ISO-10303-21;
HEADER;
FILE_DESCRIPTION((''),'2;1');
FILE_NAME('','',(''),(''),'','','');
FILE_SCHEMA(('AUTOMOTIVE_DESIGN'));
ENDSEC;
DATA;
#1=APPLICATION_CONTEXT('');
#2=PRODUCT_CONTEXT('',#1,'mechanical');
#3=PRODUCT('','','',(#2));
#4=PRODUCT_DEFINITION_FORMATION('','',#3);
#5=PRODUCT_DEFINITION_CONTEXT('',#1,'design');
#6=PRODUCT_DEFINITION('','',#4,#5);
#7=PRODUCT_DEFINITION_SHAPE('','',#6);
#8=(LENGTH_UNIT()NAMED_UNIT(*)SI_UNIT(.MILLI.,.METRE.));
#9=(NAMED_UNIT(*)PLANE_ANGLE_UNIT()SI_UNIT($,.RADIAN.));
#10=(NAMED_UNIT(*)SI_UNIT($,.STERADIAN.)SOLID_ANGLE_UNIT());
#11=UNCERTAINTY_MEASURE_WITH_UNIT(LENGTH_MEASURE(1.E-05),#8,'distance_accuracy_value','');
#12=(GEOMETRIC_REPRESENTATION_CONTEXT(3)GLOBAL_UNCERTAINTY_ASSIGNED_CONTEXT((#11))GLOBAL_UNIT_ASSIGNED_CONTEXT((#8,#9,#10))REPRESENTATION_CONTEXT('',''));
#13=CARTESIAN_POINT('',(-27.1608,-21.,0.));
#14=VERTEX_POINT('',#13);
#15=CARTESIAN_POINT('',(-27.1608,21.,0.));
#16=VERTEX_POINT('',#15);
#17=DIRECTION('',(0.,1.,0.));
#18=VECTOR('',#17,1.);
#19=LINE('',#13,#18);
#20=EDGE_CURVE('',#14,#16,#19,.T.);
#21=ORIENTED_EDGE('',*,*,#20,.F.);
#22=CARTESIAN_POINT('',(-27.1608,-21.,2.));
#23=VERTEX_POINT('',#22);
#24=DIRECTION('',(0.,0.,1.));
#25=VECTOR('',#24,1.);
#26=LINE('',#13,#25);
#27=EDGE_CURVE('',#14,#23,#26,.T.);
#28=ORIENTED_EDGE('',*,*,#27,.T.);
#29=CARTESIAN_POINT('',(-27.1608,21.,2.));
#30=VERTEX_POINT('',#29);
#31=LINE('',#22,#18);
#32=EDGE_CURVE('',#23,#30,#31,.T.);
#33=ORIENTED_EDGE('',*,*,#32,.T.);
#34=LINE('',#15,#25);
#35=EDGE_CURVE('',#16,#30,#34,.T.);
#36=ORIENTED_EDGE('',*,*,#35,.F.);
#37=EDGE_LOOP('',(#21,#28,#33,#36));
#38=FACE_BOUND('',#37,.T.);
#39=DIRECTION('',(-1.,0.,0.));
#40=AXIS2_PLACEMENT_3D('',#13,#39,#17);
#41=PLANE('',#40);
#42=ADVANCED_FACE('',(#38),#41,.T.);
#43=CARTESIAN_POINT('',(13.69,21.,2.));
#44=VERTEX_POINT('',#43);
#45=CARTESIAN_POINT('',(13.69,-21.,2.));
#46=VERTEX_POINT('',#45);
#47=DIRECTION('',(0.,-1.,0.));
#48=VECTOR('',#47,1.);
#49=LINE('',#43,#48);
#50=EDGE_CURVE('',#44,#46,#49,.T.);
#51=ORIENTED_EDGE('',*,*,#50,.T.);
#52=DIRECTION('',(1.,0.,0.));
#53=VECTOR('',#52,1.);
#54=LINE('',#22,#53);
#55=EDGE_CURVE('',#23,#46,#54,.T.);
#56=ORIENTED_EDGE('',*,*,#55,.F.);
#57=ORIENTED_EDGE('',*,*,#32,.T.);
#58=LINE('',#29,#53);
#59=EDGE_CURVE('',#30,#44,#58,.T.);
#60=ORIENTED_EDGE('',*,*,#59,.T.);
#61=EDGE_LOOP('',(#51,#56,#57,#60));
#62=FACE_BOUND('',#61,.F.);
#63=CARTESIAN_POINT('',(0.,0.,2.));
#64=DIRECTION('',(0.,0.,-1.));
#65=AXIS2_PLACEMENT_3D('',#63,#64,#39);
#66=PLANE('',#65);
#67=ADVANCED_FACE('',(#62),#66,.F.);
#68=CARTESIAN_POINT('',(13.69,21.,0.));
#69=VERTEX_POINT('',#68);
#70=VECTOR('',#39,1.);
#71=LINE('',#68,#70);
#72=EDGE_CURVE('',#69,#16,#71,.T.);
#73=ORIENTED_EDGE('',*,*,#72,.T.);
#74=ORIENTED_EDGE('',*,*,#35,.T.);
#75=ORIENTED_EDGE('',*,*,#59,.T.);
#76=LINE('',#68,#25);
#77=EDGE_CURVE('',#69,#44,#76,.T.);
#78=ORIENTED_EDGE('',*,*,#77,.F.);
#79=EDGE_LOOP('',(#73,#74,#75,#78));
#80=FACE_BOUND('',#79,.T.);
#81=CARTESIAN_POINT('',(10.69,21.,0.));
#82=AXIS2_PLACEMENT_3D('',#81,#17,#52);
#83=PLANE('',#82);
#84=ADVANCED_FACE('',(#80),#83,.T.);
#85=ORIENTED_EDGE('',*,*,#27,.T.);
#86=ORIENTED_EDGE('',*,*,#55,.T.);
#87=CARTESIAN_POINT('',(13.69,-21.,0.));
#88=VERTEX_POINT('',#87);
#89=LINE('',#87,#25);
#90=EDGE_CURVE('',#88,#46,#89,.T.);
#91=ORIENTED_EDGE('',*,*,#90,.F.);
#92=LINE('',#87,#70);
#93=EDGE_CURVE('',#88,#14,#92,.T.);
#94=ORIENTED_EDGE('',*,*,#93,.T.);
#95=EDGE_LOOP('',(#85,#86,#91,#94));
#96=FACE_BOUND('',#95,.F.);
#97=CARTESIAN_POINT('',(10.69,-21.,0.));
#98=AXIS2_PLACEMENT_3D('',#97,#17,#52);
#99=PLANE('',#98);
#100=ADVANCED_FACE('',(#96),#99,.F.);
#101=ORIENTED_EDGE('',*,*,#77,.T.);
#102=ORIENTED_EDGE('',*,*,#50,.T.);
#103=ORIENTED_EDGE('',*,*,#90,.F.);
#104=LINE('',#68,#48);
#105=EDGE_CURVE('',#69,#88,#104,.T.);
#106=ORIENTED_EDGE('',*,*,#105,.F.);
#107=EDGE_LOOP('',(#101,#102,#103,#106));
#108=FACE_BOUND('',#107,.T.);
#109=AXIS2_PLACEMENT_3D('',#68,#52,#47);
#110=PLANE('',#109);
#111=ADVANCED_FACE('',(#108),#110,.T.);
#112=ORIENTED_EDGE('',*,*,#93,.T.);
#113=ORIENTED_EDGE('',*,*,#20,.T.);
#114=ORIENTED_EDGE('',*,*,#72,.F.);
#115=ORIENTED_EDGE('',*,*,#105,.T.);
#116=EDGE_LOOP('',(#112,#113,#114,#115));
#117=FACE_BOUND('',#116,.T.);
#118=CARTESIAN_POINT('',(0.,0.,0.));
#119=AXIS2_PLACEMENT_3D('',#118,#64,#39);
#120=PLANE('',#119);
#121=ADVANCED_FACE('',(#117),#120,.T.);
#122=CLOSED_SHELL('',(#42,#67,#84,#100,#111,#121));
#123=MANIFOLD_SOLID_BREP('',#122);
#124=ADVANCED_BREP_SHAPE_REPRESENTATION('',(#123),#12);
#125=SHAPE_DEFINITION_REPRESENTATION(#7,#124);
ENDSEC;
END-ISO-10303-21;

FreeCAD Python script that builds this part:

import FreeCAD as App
import Part
import Sketcher
from FreeCAD import Vector
Q = App.Units.Quantity

doc = App.newDocument("Part")
body = doc.addObject("PartDesign::Body", "Body")

sketch1 = body.newObject("Sketcher::SketchObject", "Sketch")
sketch1.AttachmentSupport = (doc.getObject("XY_Plane"), [""])
sketch1.MapMode = "FlatFace"
sketch1.addGeometry(Part.LineSegment(Vector(-24.8832, -11.3233, 0), Vector(-20.8298, -20.1639, 0)), False)
sketch1.addGeometry(Part.LineSegment(Vector(-20.8298, -20.1639, 0), Vector(-9.3622, -20.1639, 0)), False)
sketch1.addGeometry(Part.LineSegment(Vector(-9.3622, -20.1639, 0), Vector(-9.3622, -11.5, 0)), False)
sketch1.addGeometry(Part.LineSegment(Vector(-9.3622, -11.5, 0), Vector(7.65, -11.5, 0)), False)
sketch1.addGeometry(Part.LineSegment(Vector(7.65, -11.5, 0), Vector(7.65, 11.5, 0)), False)
sketch1.addGeometry(Part.LineSegment(Vector(7.65, 11.5, 0), Vector(-9.3622, 11.5, 0)), False)
sketch1.addGeometry(Part.LineSegment(Vector(-9.3622, 11.5, 0), Vector(-9.3622, 20.3406, 0)), False)
sketch1.addGeometry(Part.LineSegment(Vector(-9.3622, 20.3406, 0), Vector(-20.8298, 20.3406, 0)), False)
sketch1.addGeometry(Part.LineSegment(Vector(-20.8298, 20.3406, 0), Vector(-24.8832, 11.5, 0)), False)
sketch1.addGeometry(Part.LineSegment(Vector(-24.8832, 11.5, 0), Vector(-24.8832, -11.3233, 0)), False)
sketch1.addConstraint(Sketcher.Constraint("Coincident", 0, 2, 1, 1))
sketch1.addConstraint(Sketcher.Constraint("Coincident", 1, 2, 2, 1))
sketch1.addConstraint(Sketcher.Constraint("Coincident", 2, 2, 3, 1))
sketch1.addConstraint(Sketcher.Constraint("Coincident", 3, 2, 4, 1))
sketch1.addConstraint(Sketcher.Constraint("Coincident", 4, 2, 5, 1))
sketch1.addConstraint(Sketcher.Constraint("Coincident", 5, 2, 6, 1))
sketch1.addConstraint(Sketcher.Constraint("Coincident", 6, 2, 7, 1))
sketch1.addConstraint(Sketcher.Constraint("Coincident", 7, 2, 8, 1))
sketch1.addConstraint(Sketcher.Constraint("Coincident", 8, 2, 9, 1))
sketch1.addConstraint(Sketcher.Constraint("Coincident", 9, 2, 0, 1))
sketch1.addConstraint(Sketcher.Constraint("Horizontal", 1))
sketch1.addConstraint(Sketcher.Constraint("Vertical", 2))
sketch1.addConstraint(Sketcher.Constraint("Horizontal", 3))
sketch1.addConstraint(Sketcher.Constraint("Vertical", 4))
sketch1.addConstraint(Sketcher.Constraint("Horizontal", 5))
sketch1.addConstraint(Sketcher.Constraint("Vertical", 6))
sketch1.addConstraint(Sketcher.Constraint("Horizontal", 7))
sketch1.addConstraint(Sketcher.Constraint("Vertical", 9))
sketch1.addConstraint(Sketcher.Constraint("Symmetric", 2, 2, 5, 2, -1))
sketch1.addConstraint(Sketcher.Constraint("Horizontal", 5, 2, 8, 2))
sketch1.addConstraint(Sketcher.Constraint("Vertical", 0, 2, 7, 2))
sketch1.addConstraint(Sketcher.Constraint("Equal", 0, 8))
sketch1.addConstraint(Sketcher.Constraint("DistanceY", 4, 1, 4, 2, Q("23 mm")))
sketch1.addConstraint(Sketcher.Constraint("DistanceY", 2, 1, 2, 2, Q("8.664 mm")))
sketch1.addConstraint(Sketcher.Constraint("DistanceX", -1, 1, 3, 2, Q("7.65 mm")))
sketch1.addConstraint(Sketcher.Constraint("DistanceX", 1, 1, 1, 2, Q("11.4676 mm")))
sketch1.addConstraint(Sketcher.Constraint("DistanceX", 3, 1, 3, 2, Q("17.0122 mm")))
sketch1.addConstraint(Sketcher.Constraint("DistanceY", 6, 1, 6, 2, Q("8.8406 mm")))
sketch1.addConstraint(Sketcher.Constraint("DistanceX", 8, 2, 5, 2, Q("15.521 mm")))
pad1 = body.newObject("PartDesign::Pad", "Pad")
pad1.Profile = sketch1
pad1.Length = 2

sketch2 = body.newObject("Sketcher::SketchObject", "Sketch001")
sketch2.AttachmentSupport = (doc.getObject("XY_Plane"), [""])
sketch2.MapMode = "FlatFace"
sketch2.AttachmentOffset = App.Placement(Vector(0, 0, 2), App.Rotation())
sketch2.addGeometry(Part.LineSegment(Vector(-9.3622, -11.5, 0), Vector(-9.3622, -20.1639, 0)), False)
sketch2.addGeometry(Part.LineSegment(Vector(-9.3622, -20.1639, 0), Vector(7.65, -20.1639, 0)), False)
sketch2.addGeometry(Part.LineSegment(Vector(7.65, -20.1639, 0), Vector(7.65, -11.5, 0)), False)
sketch2.addGeometry(Part.LineSegment(Vector(7.65, -11.5, 0), Vector(-9.3622, -11.5, 0)), False)
sketch2.addGeometry(Part.LineSegment(Vector(7.65, 20.3406, 0), Vector(-9.3622, 20.3406, 0)), False)
sketch2.addGeometry(Part.LineSegment(Vector(-9.3622, 20.3406, 0), Vector(-9.3622, 11.5, 0)), False)
sketch2.addGeometry(Part.LineSegment(Vector(-9.3622, 11.5, 0), Vector(7.65, 11.5, 0)), False)
sketch2.addGeometry(Part.LineSegment(Vector(7.65, 11.5, 0), Vector(7.65, 20.3406, 0)), False)
sketch2.addConstraint(Sketcher.Constraint("Coincident", 0, 2, 1, 1))
sketch2.addConstraint(Sketcher.Constraint("Coincident", 1, 2, 2, 1))
sketch2.addConstraint(Sketcher.Constraint("Coincident", 2, 2, 3, 1))
sketch2.addConstraint(Sketcher.Constraint("Coincident", 3, 2, 0, 1))
sketch2.addConstraint(Sketcher.Constraint("Coincident", 4, 2, 5, 1))
sketch2.addConstraint(Sketcher.Constraint("Coincident", 5, 2, 6, 1))
sketch2.addConstraint(Sketcher.Constraint("Coincident", 6, 2, 7, 1))
sketch2.addConstraint(Sketcher.Constraint("Coincident", 7, 2, 4, 1))
sketch2.addConstraint(Sketcher.Constraint("Vertical", 0))
sketch2.addConstraint(Sketcher.Constraint("Horizontal", 1))
sketch2.addConstraint(Sketcher.Constraint("Vertical", 2))
sketch2.addConstraint(Sketcher.Constraint("Horizontal", 3))
sketch2.addConstraint(Sketcher.Constraint("Horizontal", 4))
sketch2.addConstraint(Sketcher.Constraint("Vertical", 5))
sketch2.addConstraint(Sketcher.Constraint("Horizontal", 6))
sketch2.addConstraint(Sketcher.Constraint("Vertical", 7))
sketch2.addConstraint(Sketcher.Constraint("Symmetric", 3, 2, 5, 2, -1))
sketch2.addConstraint(Sketcher.Constraint("Vertical", 2, 2, 6, 2))
sketch2.addConstraint(Sketcher.Constraint("DistanceY", 3, 2, 5, 2, Q("23 mm")))
sketch2.addConstraint(Sketcher.Constraint("DistanceY", 0, 2, 0, 1, Q("8.664 mm")))
sketch2.addConstraint(Sketcher.Constraint("DistanceX", -1, 1, 1, 2, Q("7.65 mm")))
sketch2.addConstraint(Sketcher.Constraint("DistanceX", 1, 1, 1, 2, Q("17.0122 mm")))
sketch2.addConstraint(Sketcher.Constraint("DistanceY", 5, 2, 5, 1, Q("8.8406 mm")))
pad2 = body.newObject("PartDesign::Pad", "Pad001")
pad2.Profile = sketch2
pad2.Length = 2
pad2.Reversed = True

sketch3 = body.newObject("Sketcher::SketchObject", "Sketch002")
sketch3.AttachmentSupport = (doc.getObject("XY_Plane"), [""])
sketch3.MapMode = "FlatFace"
sketch3.addGeometry(Part.Circle(Vector(-4.3684, -8.4591, 0), Vector(0, 0, 1), 1.5), False)
sketch3.addGeometry(Part.Circle(Vector(-4.3684, 8.4591, 0), Vector(0, 0, 1), 1.5), False)
sketch3.addConstraint(Sketcher.Constraint("Equal", 0, 1))
sketch3.addConstraint(Sketcher.Constraint("Symmetric", 0, 3, 1, 3, -1))
sketch3.addConstraint(Sketcher.Constraint("Diameter", 0, Q("3 mm")))
sketch3.addConstraint(Sketcher.Constraint("DistanceY", 0, 3, -1, 1, Q("8.459 mm")))
sketch3.addConstraint(Sketcher.Constraint("DistanceX", 0, 3, -1, 1, Q("4.3684 mm")))
pocket1 = body.newObject("PartDesign::Pocket", "Pocket")
pocket1.Profile = sketch3
pocket1.Length = 2
pocket1.Reversed = True

sketch4 = body.newObject("Sketcher::SketchObject", "Sketch003")
sketch4.AttachmentSupport = (doc.getObject("XY_Plane"), [""])
sketch4.MapMode = "FlatFace"
sketch4.addGeometry(Part.LineSegment(Vector(13.69, 21, 0), Vector(13.69, -21, 0)), False)
sketch4.addGeometry(Part.LineSegment(Vector(13.69, -21, 0), Vector(-27.1608, -21, 0)), False)
sketch4.addGeometry(Part.LineSegment(Vector(-27.1608, -21, 0), Vector(-27.1608, 21, 0)), False)
sketch4.addGeometry(Part.LineSegment(Vector(-27.1608, 21, 0), Vector(13.69, 21, 0)), False)
sketch4.addConstraint(Sketcher.Constraint("Coincident", 0, 2, 1, 1))
sketch4.addConstraint(Sketcher.Constraint("Coincident", 1, 2, 2, 1))
sketch4.addConstraint(Sketcher.Constraint("Coincident", 2, 2, 3, 1))
sketch4.addConstraint(Sketcher.Constraint("Coincident", 3, 2, 0, 1))
sketch4.addConstraint(Sketcher.Constraint("Vertical", 0))
sketch4.addConstraint(Sketcher.Constraint("Horizontal", 1))
sketch4.addConstraint(Sketcher.Constraint("Vertical", 2))
sketch4.addConstraint(Sketcher.Constraint("Horizontal", 3))
sketch4.addConstraint(Sketcher.Constraint("DistanceY", 0, 2, 0, 1, Q("42 mm")))
sketch4.addConstraint(Sketcher.Constraint("DistanceY", 0, 2, -1, 1, Q("21 mm")))
sketch4.addConstraint(Sketcher.Constraint("DistanceX", -1, 1, 0, 2, Q("13.69 mm")))
sketch4.addConstraint(Sketcher.Constraint("DistanceX", 1, 2, 1, 1, Q("40.8508 mm")))
pad3 = body.newObject("PartDesign::Pad", "Pad002")
pad3.Profile = sketch4
pad3.Length = 2

doc.recompute()
